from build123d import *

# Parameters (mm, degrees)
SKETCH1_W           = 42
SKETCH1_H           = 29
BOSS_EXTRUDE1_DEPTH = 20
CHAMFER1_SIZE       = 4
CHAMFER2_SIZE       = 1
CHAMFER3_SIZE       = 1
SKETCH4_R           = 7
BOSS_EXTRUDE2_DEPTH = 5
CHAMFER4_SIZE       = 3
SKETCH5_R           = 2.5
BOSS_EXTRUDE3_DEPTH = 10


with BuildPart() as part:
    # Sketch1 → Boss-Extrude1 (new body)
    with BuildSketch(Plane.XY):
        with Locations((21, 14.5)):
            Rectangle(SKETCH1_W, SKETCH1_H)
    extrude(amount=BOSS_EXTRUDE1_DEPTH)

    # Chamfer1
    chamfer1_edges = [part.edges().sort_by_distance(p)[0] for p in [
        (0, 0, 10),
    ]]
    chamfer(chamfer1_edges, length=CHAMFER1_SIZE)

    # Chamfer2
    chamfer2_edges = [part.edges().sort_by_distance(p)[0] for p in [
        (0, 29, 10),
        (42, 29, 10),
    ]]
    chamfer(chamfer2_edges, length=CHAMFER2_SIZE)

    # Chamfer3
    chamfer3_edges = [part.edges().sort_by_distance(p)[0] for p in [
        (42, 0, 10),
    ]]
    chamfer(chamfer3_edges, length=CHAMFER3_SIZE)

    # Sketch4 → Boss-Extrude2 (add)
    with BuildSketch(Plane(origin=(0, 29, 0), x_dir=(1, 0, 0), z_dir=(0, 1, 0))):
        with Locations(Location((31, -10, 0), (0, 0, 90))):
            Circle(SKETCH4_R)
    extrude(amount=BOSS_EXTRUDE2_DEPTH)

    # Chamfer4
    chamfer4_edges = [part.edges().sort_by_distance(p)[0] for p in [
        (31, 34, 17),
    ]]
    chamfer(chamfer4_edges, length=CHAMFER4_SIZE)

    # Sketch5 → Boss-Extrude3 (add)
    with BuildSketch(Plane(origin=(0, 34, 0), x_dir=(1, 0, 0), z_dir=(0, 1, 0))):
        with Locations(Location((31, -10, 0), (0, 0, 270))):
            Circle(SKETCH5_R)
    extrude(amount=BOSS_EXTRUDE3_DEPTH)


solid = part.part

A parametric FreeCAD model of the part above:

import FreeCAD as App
import Part
import Sketcher
from FreeCAD import Vector
Q = App.Units.Quantity


def edges_at(feature, points):
    """Names of the edges that pass closest to the given points."""
    edges = feature.Shape.Edges
    near = lambda p: min(range(len(edges)), key=lambda i: edges[i].distToShape(Part.Vertex(*p))[0])
    return sorted({f"Edge{near(p) + 1}" for p in points})

doc = App.newDocument("Part")
params = doc.addObject("Spreadsheet::Sheet", "Params")
for row, (alias, value) in enumerate([
    ("sketch1_width", "42 mm"),
    ("sketch1_height", "29 mm"),
    ("pad1_length", "20 mm"),
    ("chamfer_size", "4 mm"),
    ("chamfer2_size", "1 mm"),
    ("chamfer3_size", "1 mm"),
    ("sketch2_diameter", "14 mm"),
    ("pad2_length", "5 mm"),
    ("chamfer4_size", "3 mm"),
    ("sketch3_diameter", "5 mm"),
    ("pad3_length", "10 mm"),
], start=1):
    params.set(f"A{row}", alias)
    params.set(f"B{row}", "=" + value)
    params.setAlias(f"B{row}", alias)

body = doc.addObject("PartDesign::Body", "Body")

# Sketch on XY plane
sketch1 = body.newObject("Sketcher::SketchObject", "Sketch")
sketch1.AttachmentSupport = (doc.getObject("XY_Plane"), [""])
sketch1.MapMode = "FlatFace"
sketch1.addGeometry(Part.LineSegment(Vector(0, 29, 0), Vector(0, 0, 0)), False)
sketch1.addGeometry(Part.LineSegment(Vector(0, 0, 0), Vector(42, 0, 0)), False)
sketch1.addGeometry(Part.LineSegment(Vector(42, 0, 0), Vector(42, 29, 0)), False)
sketch1.addGeometry(Part.LineSegment(Vector(42, 29, 0), Vector(0, 29, 0)), False)
sketch1.addConstraint(Sketcher.Constraint("Coincident", 0, 2, 1, 1))
sketch1.addConstraint(Sketcher.Constraint("Coincident", 1, 2, 2, 1))
sketch1.addConstraint(Sketcher.Constraint("Coincident", 2, 2, 3, 1))
sketch1.addConstraint(Sketcher.Constraint("Coincident", 3, 2, 0, 1))
sketch1.addConstraint(Sketcher.Constraint("Vertical", 0))
sketch1.addConstraint(Sketcher.Constraint("Horizontal", 1))
sketch1.addConstraint(Sketcher.Constraint("Vertical", 2))
sketch1.addConstraint(Sketcher.Constraint("Horizontal", 3))
sketch1.addConstraint(Sketcher.Constraint("Coincident", 0, 2, -1, 1))
sketch1.addConstraint(Sketcher.Constraint("DistanceX", 1, 1, 1, 2, Q("42 mm")))
sketch1.addConstraint(Sketcher.Constraint("DistanceY", 0, 2, 0, 1, Q("29 mm")))
sketch1.setExpression("Constraints[9]", "Params.sketch1_width")
sketch1.setExpression("Constraints[10]", "Params.sketch1_height")
pad1 = body.newObject("PartDesign::Pad", "Pad")
pad1.Profile = sketch1
pad1.setExpression("Length", "Params.pad1_length")
doc.recompute()

chamfer = body.newObject("PartDesign::Chamfer", "Chamfer")
chamfer.Base = (pad1, edges_at(pad1, [(0, 0, 10)]))
chamfer.setExpression("Size", "Params.chamfer_size")
doc.recompute()

chamfer2 = body.newObject("PartDesign::Chamfer", "Chamfer001")
chamfer2.Base = (chamfer, edges_at(chamfer, [(0, 29, 10), (42, 29, 10)]))
chamfer2.setExpression("Size", "Params.chamfer2_size")
doc.recompute()

chamfer3 = body.newObject("PartDesign::Chamfer", "Chamfer002")
chamfer3.Base = (chamfer2, edges_at(chamfer2, [(42, 0, 10)]))
chamfer3.setExpression("Size", "Params.chamfer3_size")

# Sketch on XZ plane
sketch2 = body.newObject("Sketcher::SketchObject", "Sketch001")
sketch2.AttachmentSupport = (doc.getObject("XZ_Plane"), [""])
sketch2.MapMode = "FlatFace"
sketch2.AttachmentOffset = App.Placement(Vector(0, 0, -29), App.Rotation())
sketch2.addGeometry(Part.Circle(Vector(31, 10, 0), Vector(0, 0, 1), 7), False)
sketch2.addConstraint(Sketcher.Constraint("Diameter", 0, Q("14 mm")))
sketch2.addConstraint(Sketcher.Constraint("DistanceX", -1, 1, 0, 3, Q("31 mm")))
sketch2.addConstraint(Sketcher.Constraint("DistanceY", -1, 1, 0, 3, Q("10 mm")))
sketch2.setExpression("Constraints[0]", "Params.sketch2_diameter")
pad2 = body.newObject("PartDesign::Pad", "Pad001")
pad2.Profile = sketch2
pad2.setExpression("Length", "Params.pad2_length")
pad2.Reversed = True
doc.recompute()

chamfer4 = body.newObject("PartDesign::Chamfer", "Chamfer003")
chamfer4.Base = (pad2, edges_at(pad2, [(31, 34, 17)]))
chamfer4.setExpression("Size", "Params.chamfer4_size")

# Sketch on XZ plane
sketch3 = body.newObject("Sketcher::SketchObject", "Sketch002")
sketch3.AttachmentSupport = (doc.getObject("XZ_Plane"), [""])
sketch3.MapMode = "FlatFace"
sketch3.AttachmentOffset = App.Placement(Vector(0, 0, -34), App.Rotation())
sketch3.addGeometry(Part.Circle(Vector(31, 10, 0), Vector(0, 0, 1), 2.5), False)
sketch3.addConstraint(Sketcher.Constraint("Diameter", 0, Q("5 mm")))
sketch3.addConstraint(Sketcher.Constraint("DistanceX", -1, 1, 0, 3, Q("31 mm")))
sketch3.addConstraint(Sketcher.Constraint("DistanceY", -1, 1, 0, 3, Q("10 mm")))
sketch3.setExpression("Constraints[0]", "Params.sketch3_diameter")
pad3 = body.newObject("PartDesign::Pad", "Pad002")
pad3.Profile = sketch3
pad3.setExpression("Length", "Params.pad3_length")
pad3.Reversed = True

doc.recompute()
